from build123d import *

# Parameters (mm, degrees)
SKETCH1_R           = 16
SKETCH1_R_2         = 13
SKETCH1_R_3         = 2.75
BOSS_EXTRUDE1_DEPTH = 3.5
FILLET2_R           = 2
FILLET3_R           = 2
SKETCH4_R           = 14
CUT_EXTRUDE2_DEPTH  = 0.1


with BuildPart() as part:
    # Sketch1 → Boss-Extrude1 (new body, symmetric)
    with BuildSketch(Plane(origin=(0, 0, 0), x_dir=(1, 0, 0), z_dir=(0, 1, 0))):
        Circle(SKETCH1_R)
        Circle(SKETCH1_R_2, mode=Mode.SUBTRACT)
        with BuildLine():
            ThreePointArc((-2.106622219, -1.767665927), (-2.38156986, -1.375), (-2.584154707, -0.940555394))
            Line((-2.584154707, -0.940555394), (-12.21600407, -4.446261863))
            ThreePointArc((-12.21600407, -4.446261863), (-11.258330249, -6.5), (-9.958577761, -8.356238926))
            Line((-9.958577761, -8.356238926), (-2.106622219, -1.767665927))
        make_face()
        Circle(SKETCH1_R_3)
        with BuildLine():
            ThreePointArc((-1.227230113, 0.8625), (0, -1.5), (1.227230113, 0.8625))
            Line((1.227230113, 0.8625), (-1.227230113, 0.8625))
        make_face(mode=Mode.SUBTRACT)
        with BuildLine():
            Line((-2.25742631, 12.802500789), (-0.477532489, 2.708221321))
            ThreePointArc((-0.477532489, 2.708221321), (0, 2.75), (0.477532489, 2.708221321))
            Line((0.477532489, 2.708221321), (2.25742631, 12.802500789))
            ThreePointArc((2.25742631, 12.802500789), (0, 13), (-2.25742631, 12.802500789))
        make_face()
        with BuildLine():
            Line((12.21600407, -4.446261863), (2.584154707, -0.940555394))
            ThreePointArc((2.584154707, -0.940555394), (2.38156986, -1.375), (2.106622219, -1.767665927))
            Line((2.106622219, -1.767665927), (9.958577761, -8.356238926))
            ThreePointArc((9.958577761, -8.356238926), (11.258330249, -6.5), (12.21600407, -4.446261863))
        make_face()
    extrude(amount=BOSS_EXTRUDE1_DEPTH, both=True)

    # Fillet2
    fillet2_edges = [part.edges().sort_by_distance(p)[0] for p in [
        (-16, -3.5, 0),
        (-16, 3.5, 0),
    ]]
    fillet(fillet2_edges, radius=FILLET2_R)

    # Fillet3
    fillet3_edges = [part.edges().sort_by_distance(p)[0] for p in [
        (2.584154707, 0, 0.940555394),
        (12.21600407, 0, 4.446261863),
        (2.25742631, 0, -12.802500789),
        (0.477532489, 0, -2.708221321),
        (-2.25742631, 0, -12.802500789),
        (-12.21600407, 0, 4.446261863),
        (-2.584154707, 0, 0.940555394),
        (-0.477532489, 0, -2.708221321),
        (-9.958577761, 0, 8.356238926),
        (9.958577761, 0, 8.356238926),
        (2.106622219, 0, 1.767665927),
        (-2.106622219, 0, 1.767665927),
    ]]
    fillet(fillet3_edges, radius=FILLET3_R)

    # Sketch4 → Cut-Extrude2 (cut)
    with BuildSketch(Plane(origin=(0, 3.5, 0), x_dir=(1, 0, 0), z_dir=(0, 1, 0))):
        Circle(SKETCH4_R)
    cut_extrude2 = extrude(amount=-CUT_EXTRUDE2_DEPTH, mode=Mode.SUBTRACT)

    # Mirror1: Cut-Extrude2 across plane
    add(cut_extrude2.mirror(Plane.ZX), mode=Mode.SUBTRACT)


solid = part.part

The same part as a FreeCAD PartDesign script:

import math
import FreeCAD as App
import Part
import Sketcher
from FreeCAD import Vector
Q = App.Units.Quantity


def edges_at(feature, points):
    """Names of the edges that pass closest to the given points."""
    edges = feature.Shape.Edges
    near = lambda p: min(range(len(edges)), key=lambda i: edges[i].distToShape(Part.Vertex(*p))[0])
    return sorted({f"Edge{near(p) + 1}" for p in points})

doc = App.newDocument("Part")
body = doc.addObject("PartDesign::Body", "Body")

# Sketch on XZ plane
sketch1 = body.newObject("Sketcher::SketchObject", "Sketch")
sketch1.AttachmentSupport = (doc.getObject("XZ_Plane"), [""])
sketch1.MapMode = "FlatFace"
sketch1.addGeometry(Part.Circle(Vector(0, 0, 0), Vector(0, 0, 1), 16), False)
sketch1.addGeometry(Part.ArcOfCircle(Part.Circle(Vector(0, 0, 0), Vector(0, 0, 1), 1.5), math.radians(-35), math.radians(215)), False)
sketch1.addGeometry(Part.LineSegment(Vector(-1.2, -0.9, 0), Vector(1.2, -0.9, 0)), False)
sketch1.addGeometry(Part.ArcOfCircle(Part.Circle(Vector(0, 0, 0), Vector(0, 0, 1), 13), math.radians(160), math.radians(260)), False)
sketch1.addGeometry(Part.LineSegment(Vector(-2.3, -12.8, 0), Vector(-0.5, -2.7, 0)), False)
sketch1.addGeometry(Part.ArcOfCircle(Part.Circle(Vector(0, 0, 0), Vector(0, 0, 1), 2.8), math.radians(160), math.radians(260)), False)
sketch1.addGeometry(Part.LineSegment(Vector(-2.6, 0.9, 0), Vector(-12.2, 4.4, 0)), False)
sketch1.addGeometry(Part.ArcOfCircle(Part.Circle(Vector(0, 0, 0), Vector(0, 0, 1), 13), math.radians(-80), math.radians(20)), False)
sketch1.addGeometry(Part.LineSegment(Vector(12.2, 4.4, 0), Vector(2.6, 0.9, 0)), False)
sketch1.addGeometry(Part.ArcOfCircle(Part.Circle(Vector(0, 0, 0), Vector(0, 0, 1), 2.8), math.radians(-80), math.radians(20)), False)
sketch1.addGeometry(Part.LineSegment(Vector(0.5, -2.7, 0), Vector(2.3, -12.8, 0)), False)
sketch1.addGeometry(Part.ArcOfCircle(Part.Circle(Vector(0, 0, 0), Vector(0, 0, 1), 13), math.radians(40), math.radians(140)), False)
sketch1.addGeometry(Part.LineSegment(Vector(-10, 8.4, 0), Vector(-2.1, 1.8, 0)), False)
sketch1.addGeometry(Part.ArcOfCircle(Part.Circle(Vector(0, 0, 0), Vector(0, 0, 1), 2.8), math.radians(40), math.radians(140)), False)
sketch1.addGeometry(Part.LineSegment(Vector(2.1, 1.8, 0), Vector(10, 8.4, 0)), False)
sketch1.addConstraint(Sketcher.Constraint("Coincident", 1, 1, 2, 2))
sketch1.addConstraint(Sketcher.Constraint("Coincident", 2, 1, 1, 2))
sketch1.addConstraint(Sketcher.Constraint("Coincident", 3, 2, 4, 1))
sketch1.addConstraint(Sketcher.Constraint("Coincident", 4, 2, 5, 2))
sketch1.addConstraint(Sketcher.Constraint("Coincident", 5, 1, 6, 1))
sketch1.addConstraint(Sketcher.Constraint("Coincident", 6, 2, 3, 1))
sketch1.addConstraint(Sketcher.Constraint("Coincident", 7, 2, 8, 1))
sketch1.addConstraint(Sketcher.Constraint("Coincident", 8, 2, 9, 2))
sketch1.addConstraint(Sketcher.Constraint("Coincident", 9, 1, 10, 1))
sketch1.addConstraint(Sketcher.Constraint("Coincident", 10, 2, 7, 1))
sketch1.addConstraint(Sketcher.Constraint("Coincident", 11, 2, 12, 1))
sketch1.addConstraint(Sketcher.Constraint("Coincident", 12, 2, 13, 2))
sketch1.addConstraint(Sketcher.Constraint("Coincident", 13, 1, 14, 1))
sketch1.addConstraint(Sketcher.Constraint("Coincident", 14, 2, 11, 1))
sketch1.addConstraint(Sketcher.Constraint("Horizontal", 2))
sketch1.addConstraint(Sketcher.Constraint("Coincident", 0, 3, -1, 1))
sketch1.addConstraint(Sketcher.Constraint("Coincident", 1, 3, -1, 1))
sketch1.addConstraint(Sketcher.Constraint("Coincident", 3, 3, -1, 1))
sketch1.addConstraint(Sketcher.Constraint("Coincident", 5, 3, -1, 1))
sketch1.addConstraint(Sketcher.Constraint("Coincident", 7, 3, -1, 1))
sketch1.addConstraint(Sketcher.Constraint("Coincident", 9, 3, -1, 1))
sketch1.addConstraint(Sketcher.Constraint("Coincident", 11, 3, -1, 1))
sketch1.addConstraint(Sketcher.Constraint("Coincident", 13, 3, -1, 1))
sketch1.addConstraint(Sketcher.Constraint("Equal", 3, 7))
sketch1.addConstraint(Sketcher.Constraint("Equal", 5, 9))
sketch1.addConstraint(Sketcher.Constraint("Equal", 7, 11))
sketch1.addConstraint(Sketcher.Constraint("Equal", 9, 13))
sketch1.addConstraint(Sketcher.Constraint("Horizontal", 6, 2, 7, 2))
sketch1.addConstraint(Sketcher.Constraint("Horizontal", 5, 1, 8, 2))
sketch1.addConstraint(Sketcher.Constraint("Horizontal", 4, 2, 9, 1))
sketch1.addConstraint(Sketcher.Constraint("Horizontal", 3, 2, 10, 2))
sketch1.addConstraint(Sketcher.Constraint("Horizontal", 12, 2, 13, 1))
sketch1.addConstraint(Sketcher.Constraint("Horizontal", 11, 2, 14, 2))
sketch1.addConstraint(Sketcher.Constraint("Diameter", 0, Q("32 mm")))
sketch1.addConstraint(Sketcher.Constraint("Radius", 3, Q("13 mm")))
sketch1.addConstraint(Sketcher.Constraint("Radius", 1, Q("1.5 mm")))
sketch1.addConstraint(Sketcher.Constraint("Angle", 4, Q("80 deg")))
sketch1.addConstraint(Sketcher.Constraint("Angle", 6, Q("160 deg")))
sketch1.addConstraint(Sketcher.Constraint("Angle", 12, Q("-40 deg")))
sketch1.addConstraint(Sketcher.Constraint("Radius", 5, Q("2.75 mm")))
sketch1.addConstraint(Sketcher.Constraint("DistanceY", 3, 2, 2, 1, Q("11.940001 mm")))
sketch1.addConstraint(Sketcher.Constraint("DistanceX", 2, 1, 2, 2, Q("2.45446 mm")))
sketch1.addConstraint(Sketcher.Constraint("DistanceY", -1, 1, 6, 2, Q("4.446262 mm")))
sketch1.addConstraint(Sketcher.Constraint("DistanceY", -1, 1, 11, 2, Q("8.356239 mm")))
pad1 = body.newObject("PartDesign::Pad", "Pad")
pad1.Profile = sketch1
pad1.Length = 7
pad1.Midplane = True
doc.recompute()

fillet = body.newObject("PartDesign::Fillet", "Fillet")
fillet.Base = (pad1, edges_at(pad1, [(-16, -3.5, 0), (-16, 3.5, 0)]))
fillet.Radius = 2
doc.recompute()

fillet2 = body.newObject("PartDesign::Fillet", "Fillet001")
fillet2.Base = (fillet, edges_at(fillet, [
    (2.584, 0, 0.941),
    (12.216, 0, 4.446),
    (2.257, 0, -12.803),
    (0.478, 0, -2.708),
    (-2.257, 0, -12.803),
    (-12.216, 0, 4.446),
    (-2.584, 0, 0.941),
    (-0.478, 0, -2.708),
    (-9.959, 0, 8.356),
    (9.959, 0, 8.356),
    (2.107, 0, 1.768),
    (-2.107, 0, 1.768),
]))
fillet2.Radius = 2

# Sketch on XZ plane
sketch2 = body.newObject("Sketcher::SketchObject", "Sketch001")
sketch2.AttachmentSupport = (doc.getObject("XZ_Plane"), [""])
sketch2.MapMode = "FlatFace"
sketch2.AttachmentOffset = App.Placement(Vector(0, 0, -3.5), App.Rotation())
sketch2.addGeometry(Part.Circle(Vector(0, 0, 0), Vector(0, 0, 1), 14), False)
sketch2.addConstraint(Sketcher.Constraint("Coincident", 0, 3, -1, 1))
sketch2.addConstraint(Sketcher.Constraint("Diameter", 0, Q("28 mm")))
pocket1 = body.newObject("PartDesign::Pocket", "Pocket")
pocket1.Profile = sketch2
pocket1.Length = 0.1
pocket1.Reversed = True
doc.recompute()

mirrored = body.newObject("PartDesign::Mirrored", "Mirrored")
mirrored.Originals = [pocket1]
mirrored.MirrorPlane = (doc.getObject("XZ_Plane"), [""])
body.Tip = mirrored

doc.recompute()
